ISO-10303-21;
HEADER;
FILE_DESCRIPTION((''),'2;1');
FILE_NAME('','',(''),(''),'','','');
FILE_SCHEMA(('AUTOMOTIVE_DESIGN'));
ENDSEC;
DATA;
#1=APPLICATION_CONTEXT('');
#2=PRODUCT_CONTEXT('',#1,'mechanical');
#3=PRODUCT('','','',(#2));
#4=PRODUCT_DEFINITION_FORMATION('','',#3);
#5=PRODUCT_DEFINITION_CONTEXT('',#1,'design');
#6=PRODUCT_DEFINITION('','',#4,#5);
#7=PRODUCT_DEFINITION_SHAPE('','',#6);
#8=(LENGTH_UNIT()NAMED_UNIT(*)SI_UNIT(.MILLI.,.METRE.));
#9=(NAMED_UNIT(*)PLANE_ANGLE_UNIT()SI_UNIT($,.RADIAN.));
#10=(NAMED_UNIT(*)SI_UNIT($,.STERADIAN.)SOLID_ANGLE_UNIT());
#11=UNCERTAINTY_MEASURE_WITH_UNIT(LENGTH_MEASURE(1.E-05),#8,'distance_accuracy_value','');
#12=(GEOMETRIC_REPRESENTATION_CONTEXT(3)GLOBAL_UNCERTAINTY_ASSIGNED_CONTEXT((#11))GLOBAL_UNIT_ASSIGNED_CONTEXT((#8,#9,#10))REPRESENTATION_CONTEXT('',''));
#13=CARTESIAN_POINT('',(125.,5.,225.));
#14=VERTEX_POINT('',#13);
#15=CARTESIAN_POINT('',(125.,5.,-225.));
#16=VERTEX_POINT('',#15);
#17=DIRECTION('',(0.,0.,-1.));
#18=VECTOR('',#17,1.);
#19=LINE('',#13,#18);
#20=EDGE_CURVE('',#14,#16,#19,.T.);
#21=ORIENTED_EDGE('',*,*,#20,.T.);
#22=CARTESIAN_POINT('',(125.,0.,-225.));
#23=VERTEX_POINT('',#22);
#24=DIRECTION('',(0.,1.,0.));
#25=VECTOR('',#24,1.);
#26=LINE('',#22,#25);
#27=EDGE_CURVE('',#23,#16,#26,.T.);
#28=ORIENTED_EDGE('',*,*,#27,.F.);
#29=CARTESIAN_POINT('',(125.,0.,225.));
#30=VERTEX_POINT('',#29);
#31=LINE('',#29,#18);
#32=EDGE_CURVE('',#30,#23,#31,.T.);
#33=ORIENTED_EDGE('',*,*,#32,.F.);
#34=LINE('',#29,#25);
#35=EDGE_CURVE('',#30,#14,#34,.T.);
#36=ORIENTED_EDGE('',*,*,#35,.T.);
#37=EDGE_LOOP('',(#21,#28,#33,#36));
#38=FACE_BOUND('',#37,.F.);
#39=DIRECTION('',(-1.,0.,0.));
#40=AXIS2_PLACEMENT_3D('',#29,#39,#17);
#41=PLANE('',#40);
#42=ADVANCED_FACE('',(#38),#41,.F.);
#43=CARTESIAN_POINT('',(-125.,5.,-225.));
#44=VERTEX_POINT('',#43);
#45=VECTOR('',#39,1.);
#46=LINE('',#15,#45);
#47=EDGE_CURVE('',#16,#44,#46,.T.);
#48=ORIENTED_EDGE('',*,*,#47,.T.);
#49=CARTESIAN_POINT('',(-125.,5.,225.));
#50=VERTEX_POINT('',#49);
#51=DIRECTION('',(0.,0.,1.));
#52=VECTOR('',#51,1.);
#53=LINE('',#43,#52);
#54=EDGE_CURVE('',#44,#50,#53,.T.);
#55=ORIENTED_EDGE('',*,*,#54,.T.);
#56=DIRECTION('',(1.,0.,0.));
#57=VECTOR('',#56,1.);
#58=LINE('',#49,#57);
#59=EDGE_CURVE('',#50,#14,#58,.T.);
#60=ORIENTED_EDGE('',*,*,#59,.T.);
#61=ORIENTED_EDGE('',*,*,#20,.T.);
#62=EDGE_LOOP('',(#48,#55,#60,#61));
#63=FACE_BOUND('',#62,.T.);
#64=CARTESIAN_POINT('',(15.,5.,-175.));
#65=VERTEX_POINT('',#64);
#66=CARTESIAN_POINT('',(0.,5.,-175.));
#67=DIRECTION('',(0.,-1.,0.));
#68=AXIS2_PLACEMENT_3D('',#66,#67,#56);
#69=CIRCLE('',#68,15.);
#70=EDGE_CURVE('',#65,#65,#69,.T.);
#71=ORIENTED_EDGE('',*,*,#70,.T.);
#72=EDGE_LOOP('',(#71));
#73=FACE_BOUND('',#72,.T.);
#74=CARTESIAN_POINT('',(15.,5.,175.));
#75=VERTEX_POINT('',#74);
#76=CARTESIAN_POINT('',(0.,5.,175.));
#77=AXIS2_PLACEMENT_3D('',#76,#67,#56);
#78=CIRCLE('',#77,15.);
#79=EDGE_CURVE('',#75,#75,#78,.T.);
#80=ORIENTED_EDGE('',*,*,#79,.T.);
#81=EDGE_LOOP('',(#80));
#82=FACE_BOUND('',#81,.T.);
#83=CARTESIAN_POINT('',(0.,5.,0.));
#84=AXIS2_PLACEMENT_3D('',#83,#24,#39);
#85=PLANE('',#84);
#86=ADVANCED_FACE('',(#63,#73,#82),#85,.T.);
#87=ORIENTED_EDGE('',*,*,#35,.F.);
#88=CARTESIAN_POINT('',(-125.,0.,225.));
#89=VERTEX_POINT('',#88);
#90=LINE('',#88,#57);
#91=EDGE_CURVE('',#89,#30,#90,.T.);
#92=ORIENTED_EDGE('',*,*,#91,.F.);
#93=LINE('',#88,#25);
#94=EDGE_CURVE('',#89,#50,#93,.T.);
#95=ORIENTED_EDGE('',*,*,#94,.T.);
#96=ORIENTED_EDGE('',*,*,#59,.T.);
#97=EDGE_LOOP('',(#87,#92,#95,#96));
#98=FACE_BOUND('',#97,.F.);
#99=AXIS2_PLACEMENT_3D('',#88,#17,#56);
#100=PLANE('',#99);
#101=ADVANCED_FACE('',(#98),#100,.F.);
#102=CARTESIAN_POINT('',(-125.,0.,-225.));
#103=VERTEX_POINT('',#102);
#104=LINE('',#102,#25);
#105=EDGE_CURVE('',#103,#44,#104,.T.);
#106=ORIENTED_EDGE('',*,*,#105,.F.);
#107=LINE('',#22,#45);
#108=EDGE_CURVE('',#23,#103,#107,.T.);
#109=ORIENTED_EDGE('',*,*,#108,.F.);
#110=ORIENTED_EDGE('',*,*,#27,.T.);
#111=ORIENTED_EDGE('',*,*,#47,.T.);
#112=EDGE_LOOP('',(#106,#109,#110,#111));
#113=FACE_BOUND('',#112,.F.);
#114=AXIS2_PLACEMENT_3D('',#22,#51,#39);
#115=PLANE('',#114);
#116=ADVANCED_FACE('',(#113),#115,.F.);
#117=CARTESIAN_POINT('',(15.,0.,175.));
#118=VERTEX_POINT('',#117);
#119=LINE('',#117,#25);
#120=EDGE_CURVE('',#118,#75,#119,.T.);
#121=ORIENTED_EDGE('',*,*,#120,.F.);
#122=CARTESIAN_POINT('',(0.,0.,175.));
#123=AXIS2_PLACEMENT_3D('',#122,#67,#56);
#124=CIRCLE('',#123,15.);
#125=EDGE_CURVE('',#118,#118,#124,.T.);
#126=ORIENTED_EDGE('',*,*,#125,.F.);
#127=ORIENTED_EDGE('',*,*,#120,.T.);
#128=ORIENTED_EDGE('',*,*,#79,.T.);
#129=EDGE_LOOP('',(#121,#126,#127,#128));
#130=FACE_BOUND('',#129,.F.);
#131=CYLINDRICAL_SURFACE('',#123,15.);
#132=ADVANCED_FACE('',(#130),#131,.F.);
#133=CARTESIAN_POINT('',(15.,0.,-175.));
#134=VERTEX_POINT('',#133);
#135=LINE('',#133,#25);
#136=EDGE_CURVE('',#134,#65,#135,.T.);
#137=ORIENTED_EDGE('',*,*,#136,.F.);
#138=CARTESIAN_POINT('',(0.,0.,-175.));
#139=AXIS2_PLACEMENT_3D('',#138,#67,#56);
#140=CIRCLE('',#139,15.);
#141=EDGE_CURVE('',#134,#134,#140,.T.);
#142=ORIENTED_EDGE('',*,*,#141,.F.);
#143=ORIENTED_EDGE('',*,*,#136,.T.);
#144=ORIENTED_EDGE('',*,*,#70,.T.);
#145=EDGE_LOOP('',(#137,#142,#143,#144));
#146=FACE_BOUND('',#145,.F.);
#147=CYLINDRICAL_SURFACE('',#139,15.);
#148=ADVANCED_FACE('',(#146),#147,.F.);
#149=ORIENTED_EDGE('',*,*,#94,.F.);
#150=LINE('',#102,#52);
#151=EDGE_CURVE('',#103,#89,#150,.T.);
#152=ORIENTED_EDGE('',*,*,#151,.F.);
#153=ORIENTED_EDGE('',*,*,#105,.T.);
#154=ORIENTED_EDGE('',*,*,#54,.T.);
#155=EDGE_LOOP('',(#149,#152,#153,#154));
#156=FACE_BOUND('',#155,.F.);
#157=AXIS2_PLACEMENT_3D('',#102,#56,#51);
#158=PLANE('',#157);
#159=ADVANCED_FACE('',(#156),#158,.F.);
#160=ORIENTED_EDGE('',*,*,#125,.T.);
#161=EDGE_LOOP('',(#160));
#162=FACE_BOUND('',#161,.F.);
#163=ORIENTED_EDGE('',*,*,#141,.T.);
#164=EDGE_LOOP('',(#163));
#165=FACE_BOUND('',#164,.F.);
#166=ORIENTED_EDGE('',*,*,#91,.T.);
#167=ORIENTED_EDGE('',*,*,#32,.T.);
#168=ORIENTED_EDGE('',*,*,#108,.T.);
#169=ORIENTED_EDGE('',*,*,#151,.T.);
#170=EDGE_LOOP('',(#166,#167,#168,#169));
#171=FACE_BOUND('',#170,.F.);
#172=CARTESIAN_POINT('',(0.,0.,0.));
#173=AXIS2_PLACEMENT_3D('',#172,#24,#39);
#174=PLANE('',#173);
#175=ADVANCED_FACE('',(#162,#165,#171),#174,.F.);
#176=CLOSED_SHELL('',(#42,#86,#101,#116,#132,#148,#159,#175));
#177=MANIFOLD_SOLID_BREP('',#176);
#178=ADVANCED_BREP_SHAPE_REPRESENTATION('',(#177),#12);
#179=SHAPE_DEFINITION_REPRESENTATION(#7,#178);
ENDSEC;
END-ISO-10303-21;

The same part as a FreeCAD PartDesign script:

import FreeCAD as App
import Part
import Sketcher

V = App.Vector
Q = App.Units.Quantity

doc = App.newDocument("Part")
body = doc.addObject("PartDesign::Body", "Body")

sketch1 = body.newObject("Sketcher::SketchObject", "Sketch")
sketch1.AttachmentSupport = (doc.getObject("XZ_Plane"), [""])
sketch1.MapMode = "FlatFace"
sketch1.addGeometry([
    Part.LineSegment(V(-125, -225, 0), V(-125, 225, 0)),
    Part.LineSegment(V(-125, 225, 0), V(125, 225, 0)),
    Part.LineSegment(V(125, 225, 0), V(125, -225, 0)),
    Part.LineSegment(V(125, -225, 0), V(-125, -225, 0)),
], False)
sketch1.addConstraint([
    Sketcher.Constraint("Coincident", 0, 2, 1, 1),
    Sketcher.Constraint("Coincident", 1, 2, 2, 1),
    Sketcher.Constraint("Coincident", 2, 2, 3, 1),
    Sketcher.Constraint("Coincident", 3, 2, 0, 1),
    Sketcher.Constraint("Vertical", 0),
    Sketcher.Constraint("Horizontal", 1),
    Sketcher.Constraint("Vertical", 2),
    Sketcher.Constraint("Horizontal", 3),
    Sketcher.Constraint("Symmetric", 0, 2, 2, 2, -1, 1),
    Sketcher.Constraint("DistanceX", 1, 1, 1, 2, Q("250 mm")),
    Sketcher.Constraint("DistanceY", 0, 1, 0, 2, Q("450 mm")),
])
pad1 = body.newObject("PartDesign::Pad", "Pad")
pad1.Profile = sketch1
pad1.Length = 5
pad1.Reversed = True

sketch2 = body.newObject("Sketcher::SketchObject", "Sketch001")
sketch2.AttachmentSupport = (doc.getObject("XZ_Plane"), [""])
sketch2.MapMode = "FlatFace"
sketch2.addGeometry([
    Part.Circle(V(0, 175, 0), V(0, 0, 1), 15),
    Part.Circle(V(0, -175, 0), V(0, 0, 1), 15),
], False)
sketch2.addConstraint([
    Sketcher.Constraint("Equal", 0, 1),
    Sketcher.Constraint("Symmetric", 0, 3, 1, 3, -1, 1),
    Sketcher.Constraint("PointOnObject", 0, 3, -2),
    Sketcher.Constraint("Diameter", 0, Q("30 mm")),
    Sketcher.Constraint("DistanceY", -1, 1, 0, 3, Q("175 mm")),
])
pocket1 = body.newObject("PartDesign::Pocket", "Pocket")
pocket1.Profile = sketch2
pocket1.Length = 5

doc.recompute()
